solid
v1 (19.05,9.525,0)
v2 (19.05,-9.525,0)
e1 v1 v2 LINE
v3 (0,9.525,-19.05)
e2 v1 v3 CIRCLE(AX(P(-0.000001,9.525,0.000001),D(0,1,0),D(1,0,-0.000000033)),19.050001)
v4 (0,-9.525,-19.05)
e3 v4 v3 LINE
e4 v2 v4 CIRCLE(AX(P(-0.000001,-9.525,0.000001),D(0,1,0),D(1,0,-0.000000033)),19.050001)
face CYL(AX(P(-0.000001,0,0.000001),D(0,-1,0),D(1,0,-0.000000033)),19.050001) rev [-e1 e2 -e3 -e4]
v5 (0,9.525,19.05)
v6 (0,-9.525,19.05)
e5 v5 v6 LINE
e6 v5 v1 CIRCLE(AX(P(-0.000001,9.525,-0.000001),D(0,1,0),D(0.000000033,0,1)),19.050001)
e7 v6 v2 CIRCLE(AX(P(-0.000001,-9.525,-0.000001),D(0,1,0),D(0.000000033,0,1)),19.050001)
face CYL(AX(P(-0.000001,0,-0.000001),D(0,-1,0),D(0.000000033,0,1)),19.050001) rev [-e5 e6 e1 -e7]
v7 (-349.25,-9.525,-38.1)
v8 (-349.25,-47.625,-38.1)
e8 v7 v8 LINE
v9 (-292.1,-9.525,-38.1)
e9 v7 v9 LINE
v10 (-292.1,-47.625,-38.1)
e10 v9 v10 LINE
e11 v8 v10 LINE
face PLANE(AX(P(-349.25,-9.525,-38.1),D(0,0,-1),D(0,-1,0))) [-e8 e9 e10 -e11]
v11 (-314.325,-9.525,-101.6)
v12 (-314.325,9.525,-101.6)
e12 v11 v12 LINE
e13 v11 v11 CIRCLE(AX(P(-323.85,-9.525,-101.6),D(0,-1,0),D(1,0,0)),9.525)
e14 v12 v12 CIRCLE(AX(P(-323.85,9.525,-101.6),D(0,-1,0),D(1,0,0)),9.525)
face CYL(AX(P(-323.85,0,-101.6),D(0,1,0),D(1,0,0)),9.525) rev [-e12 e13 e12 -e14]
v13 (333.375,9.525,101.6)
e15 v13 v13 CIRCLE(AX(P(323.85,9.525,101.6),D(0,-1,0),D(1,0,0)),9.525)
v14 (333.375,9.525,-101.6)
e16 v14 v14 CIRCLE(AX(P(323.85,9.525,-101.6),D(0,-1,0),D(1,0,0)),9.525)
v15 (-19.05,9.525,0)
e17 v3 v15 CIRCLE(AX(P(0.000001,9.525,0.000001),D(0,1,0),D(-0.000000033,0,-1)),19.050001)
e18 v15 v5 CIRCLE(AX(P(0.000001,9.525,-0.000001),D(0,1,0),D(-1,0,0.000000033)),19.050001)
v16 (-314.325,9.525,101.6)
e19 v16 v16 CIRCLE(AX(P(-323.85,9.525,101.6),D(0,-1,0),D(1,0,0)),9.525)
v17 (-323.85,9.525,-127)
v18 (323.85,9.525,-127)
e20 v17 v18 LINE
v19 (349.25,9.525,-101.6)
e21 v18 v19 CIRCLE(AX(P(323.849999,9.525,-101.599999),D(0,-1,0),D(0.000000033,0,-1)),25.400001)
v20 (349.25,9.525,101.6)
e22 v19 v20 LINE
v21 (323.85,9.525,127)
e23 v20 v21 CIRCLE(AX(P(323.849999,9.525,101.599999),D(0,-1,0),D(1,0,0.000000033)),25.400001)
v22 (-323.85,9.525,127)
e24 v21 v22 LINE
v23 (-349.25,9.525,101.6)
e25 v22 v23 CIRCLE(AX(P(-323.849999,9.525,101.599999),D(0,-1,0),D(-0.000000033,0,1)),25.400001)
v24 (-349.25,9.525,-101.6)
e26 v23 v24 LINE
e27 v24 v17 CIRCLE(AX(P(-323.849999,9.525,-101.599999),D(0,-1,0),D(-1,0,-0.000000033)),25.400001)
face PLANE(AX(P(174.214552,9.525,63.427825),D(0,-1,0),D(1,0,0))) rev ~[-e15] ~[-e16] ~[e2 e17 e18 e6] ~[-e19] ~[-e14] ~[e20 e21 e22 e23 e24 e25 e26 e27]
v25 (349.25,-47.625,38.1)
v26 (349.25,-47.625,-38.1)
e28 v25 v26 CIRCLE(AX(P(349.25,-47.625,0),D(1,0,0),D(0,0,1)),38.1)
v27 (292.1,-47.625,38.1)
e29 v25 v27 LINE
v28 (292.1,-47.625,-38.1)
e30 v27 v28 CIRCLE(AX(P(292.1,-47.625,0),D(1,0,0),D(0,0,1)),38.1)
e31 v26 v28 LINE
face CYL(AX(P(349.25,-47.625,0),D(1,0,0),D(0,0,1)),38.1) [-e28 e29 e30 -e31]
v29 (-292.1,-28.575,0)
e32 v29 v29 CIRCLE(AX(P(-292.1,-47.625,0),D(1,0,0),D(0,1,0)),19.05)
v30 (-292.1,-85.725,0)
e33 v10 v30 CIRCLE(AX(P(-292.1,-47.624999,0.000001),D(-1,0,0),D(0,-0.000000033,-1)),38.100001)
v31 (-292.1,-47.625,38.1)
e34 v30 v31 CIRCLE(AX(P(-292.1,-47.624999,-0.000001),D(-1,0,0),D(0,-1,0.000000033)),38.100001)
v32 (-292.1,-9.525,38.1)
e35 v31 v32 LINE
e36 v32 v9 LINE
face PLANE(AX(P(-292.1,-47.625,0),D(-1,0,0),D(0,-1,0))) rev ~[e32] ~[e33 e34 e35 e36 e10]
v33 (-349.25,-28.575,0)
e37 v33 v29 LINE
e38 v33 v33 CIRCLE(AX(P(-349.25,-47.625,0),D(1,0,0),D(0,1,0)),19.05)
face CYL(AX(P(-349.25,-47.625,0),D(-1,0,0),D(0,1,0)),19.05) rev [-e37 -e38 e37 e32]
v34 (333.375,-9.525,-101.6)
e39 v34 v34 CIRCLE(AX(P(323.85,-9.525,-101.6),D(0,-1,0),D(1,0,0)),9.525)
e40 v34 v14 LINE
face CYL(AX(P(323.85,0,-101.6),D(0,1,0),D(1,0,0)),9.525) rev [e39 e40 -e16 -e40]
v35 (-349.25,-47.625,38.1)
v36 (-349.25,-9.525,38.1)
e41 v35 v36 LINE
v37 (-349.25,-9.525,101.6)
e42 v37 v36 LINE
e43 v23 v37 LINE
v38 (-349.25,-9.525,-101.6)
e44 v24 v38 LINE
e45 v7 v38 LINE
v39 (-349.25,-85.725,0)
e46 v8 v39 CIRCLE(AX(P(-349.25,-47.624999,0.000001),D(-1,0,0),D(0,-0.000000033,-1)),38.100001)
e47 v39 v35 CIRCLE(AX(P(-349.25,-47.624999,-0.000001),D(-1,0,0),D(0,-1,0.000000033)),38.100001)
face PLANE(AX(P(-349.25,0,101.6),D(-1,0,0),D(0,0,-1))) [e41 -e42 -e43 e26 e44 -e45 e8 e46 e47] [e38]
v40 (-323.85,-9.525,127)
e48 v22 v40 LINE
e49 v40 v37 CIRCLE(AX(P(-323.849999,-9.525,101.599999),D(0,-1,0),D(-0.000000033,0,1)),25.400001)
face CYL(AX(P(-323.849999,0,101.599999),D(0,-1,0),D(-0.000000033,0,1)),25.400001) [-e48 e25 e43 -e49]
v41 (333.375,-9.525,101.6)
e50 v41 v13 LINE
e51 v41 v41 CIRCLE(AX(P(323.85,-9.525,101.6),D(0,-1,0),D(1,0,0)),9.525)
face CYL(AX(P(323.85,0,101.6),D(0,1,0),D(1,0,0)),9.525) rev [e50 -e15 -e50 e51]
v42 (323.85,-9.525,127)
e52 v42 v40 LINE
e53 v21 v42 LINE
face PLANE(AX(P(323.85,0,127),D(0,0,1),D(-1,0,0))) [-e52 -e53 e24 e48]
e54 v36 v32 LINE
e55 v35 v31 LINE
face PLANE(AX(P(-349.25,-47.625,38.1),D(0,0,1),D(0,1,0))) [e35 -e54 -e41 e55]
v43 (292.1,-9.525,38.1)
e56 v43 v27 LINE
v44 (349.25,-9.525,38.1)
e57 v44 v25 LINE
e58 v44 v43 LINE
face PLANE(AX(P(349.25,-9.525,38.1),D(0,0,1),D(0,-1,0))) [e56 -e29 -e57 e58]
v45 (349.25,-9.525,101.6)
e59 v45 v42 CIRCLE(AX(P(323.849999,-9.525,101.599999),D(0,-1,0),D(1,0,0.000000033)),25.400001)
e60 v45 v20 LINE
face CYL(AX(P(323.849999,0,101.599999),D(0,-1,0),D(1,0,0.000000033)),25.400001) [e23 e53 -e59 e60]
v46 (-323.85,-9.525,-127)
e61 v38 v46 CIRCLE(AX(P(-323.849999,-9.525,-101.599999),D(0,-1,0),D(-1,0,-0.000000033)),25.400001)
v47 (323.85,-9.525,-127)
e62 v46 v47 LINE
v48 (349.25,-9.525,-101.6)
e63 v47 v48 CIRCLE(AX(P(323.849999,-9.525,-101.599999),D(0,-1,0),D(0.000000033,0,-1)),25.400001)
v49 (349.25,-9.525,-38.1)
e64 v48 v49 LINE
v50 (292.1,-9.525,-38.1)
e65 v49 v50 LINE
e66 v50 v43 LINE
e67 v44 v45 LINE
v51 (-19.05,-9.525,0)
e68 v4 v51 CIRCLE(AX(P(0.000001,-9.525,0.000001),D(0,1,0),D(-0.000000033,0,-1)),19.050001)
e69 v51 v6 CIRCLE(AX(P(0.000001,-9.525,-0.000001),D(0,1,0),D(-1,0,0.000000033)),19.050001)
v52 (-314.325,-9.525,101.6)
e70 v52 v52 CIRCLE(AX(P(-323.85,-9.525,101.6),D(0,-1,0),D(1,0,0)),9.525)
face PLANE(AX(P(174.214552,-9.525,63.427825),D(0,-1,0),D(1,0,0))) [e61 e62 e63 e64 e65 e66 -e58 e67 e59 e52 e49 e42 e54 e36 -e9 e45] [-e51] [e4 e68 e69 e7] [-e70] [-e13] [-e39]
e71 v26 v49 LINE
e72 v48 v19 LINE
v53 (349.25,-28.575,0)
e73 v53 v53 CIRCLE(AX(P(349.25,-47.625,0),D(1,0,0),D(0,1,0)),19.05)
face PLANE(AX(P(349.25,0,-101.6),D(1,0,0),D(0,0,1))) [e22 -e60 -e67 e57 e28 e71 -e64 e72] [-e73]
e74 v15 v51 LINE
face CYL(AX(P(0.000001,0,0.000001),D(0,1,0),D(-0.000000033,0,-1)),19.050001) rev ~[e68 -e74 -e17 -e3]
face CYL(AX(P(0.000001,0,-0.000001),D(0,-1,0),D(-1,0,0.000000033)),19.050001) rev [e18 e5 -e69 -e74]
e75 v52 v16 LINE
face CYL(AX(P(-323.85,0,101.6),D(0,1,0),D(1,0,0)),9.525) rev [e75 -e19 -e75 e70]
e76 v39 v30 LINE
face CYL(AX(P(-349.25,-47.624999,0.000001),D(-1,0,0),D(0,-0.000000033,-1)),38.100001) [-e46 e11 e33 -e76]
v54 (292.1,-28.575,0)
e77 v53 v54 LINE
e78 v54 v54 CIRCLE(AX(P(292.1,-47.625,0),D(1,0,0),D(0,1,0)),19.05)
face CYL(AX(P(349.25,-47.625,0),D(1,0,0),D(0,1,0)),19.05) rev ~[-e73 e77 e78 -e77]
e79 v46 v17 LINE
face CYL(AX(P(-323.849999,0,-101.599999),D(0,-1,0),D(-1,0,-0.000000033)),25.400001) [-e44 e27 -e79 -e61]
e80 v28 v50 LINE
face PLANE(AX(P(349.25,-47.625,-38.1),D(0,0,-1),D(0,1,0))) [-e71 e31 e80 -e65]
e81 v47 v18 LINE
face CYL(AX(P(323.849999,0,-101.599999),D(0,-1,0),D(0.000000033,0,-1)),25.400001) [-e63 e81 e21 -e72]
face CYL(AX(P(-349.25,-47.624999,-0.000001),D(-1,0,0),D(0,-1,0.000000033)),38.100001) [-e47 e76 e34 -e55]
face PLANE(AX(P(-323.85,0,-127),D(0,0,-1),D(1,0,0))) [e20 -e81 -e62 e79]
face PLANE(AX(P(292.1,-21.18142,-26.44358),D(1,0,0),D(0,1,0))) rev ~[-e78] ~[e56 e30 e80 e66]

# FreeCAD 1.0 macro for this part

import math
import FreeCAD as App
import Part
import Sketcher
Q = App.Units.Quantity

doc = App.newDocument("Part")
params = doc.addObject("Spreadsheet::Sheet", "Params")
for row, (alias, value) in enumerate([
    ("sketch1_radius", "1 in"),
    ("sketch1_diameter", "0.75 in"),
    ("sketch1_height", "8 in"),
    ("sketch1_radius2", "0.75 in"),
    ("sketch1_width", "25.5 in"),
    ("pad1_length", "0.75 in"),
    ("sketch2_diameter", "1.5 in"),
    ("sketch2_radius", "1.5 in"),
    ("sketch2_width", "1.5 in"),
    ("pad2_length", "2.25 in"),
    ("sketch3_diameter", "1.5 in"),
    ("sketch3_radius", "1.5 in"),
    ("sketch3_width", "1.5 in"),
    ("pad3_length", "2.25 in"),
], start=1):
    params.set(f"A{row}", alias)
    params.set(f"B{row}", "=" + value)
    params.setAlias(f"B{row}", alias)

body = doc.addObject("PartDesign::Body", "Body")

# Sketch on XZ plane
sketch1 = body.newObject("Sketcher::SketchObject", "Sketch")
sketch1.AttachmentSupport = (doc.getObject("XZ_Plane"), [""])
sketch1.MapMode = "FlatFace"
sketch1.addGeometry([
    Part.ArcOfCircle(Part.Circle(App.Vector(324, 102, 0), App.Vector(0, 0, 1), 25), math.radians(0), math.radians(90)),  # 0
    Part.LineSegment(App.Vector(324, 127, 0), App.Vector(-324, 127, 0)),  # 1
    Part.ArcOfCircle(Part.Circle(App.Vector(-324, 102, 0), App.Vector(0, 0, 1), 25), math.radians(90), math.radians(180)),  # 2
    Part.LineSegment(App.Vector(-349, 102, 0), App.Vector(-349, -102, 0)),  # 3
    Part.ArcOfCircle(Part.Circle(App.Vector(-324, -102, 0), App.Vector(0, 0, 1), 25), math.radians(-180), math.radians(-90)),  # 4
    Part.LineSegment(App.Vector(-324, -127, 0), App.Vector(324, -127, 0)),  # 5
    Part.ArcOfCircle(Part.Circle(App.Vector(324, -102, 0), App.Vector(0, 0, 1), 25), math.radians(-90), math.radians(0)),  # 6
    Part.LineSegment(App.Vector(349, -102, 0), App.Vector(349, 102, 0)),  # 7
    Part.Circle(App.Vector(-324, -102, 0), App.Vector(0, 0, 1), 10),  # 8
    Part.Circle(App.Vector(324, -102, 0), App.Vector(0, 0, 1), 10),  # 9
    Part.Circle(App.Vector(-324, 102, 0), App.Vector(0, 0, 1), 10),  # 10
    Part.ArcOfCircle(Part.Circle(App.Vector(0, 0, 0), App.Vector(0, 0, 1), 19), math.radians(0), math.radians(90)),  # 11
    Part.ArcOfCircle(Part.Circle(App.Vector(0, 0, 0), App.Vector(0, 0, 1), 19), math.radians(-90), math.radians(0)),  # 12
    Part.ArcOfCircle(Part.Circle(App.Vector(0, 0, 0), App.Vector(0, 0, 1), 19), math.radians(-180), math.radians(-90)),  # 13
    Part.ArcOfCircle(Part.Circle(App.Vector(0, 0, 0), App.Vector(0, 0, 1), 19), math.radians(90), math.radians(180)),  # 14
    Part.Circle(App.Vector(324, 102, 0), App.Vector(0, 0, 1), 10),  # 15
], False)
sketch1.addConstraint([
    Sketcher.Constraint("Tangent", 0, 2, 1, 1),
    Sketcher.Constraint("Tangent", 1, 2, 2, 1),
    Sketcher.Constraint("Tangent", 2, 2, 3, 1),
    Sketcher.Constraint("Tangent", 3, 2, 4, 1),
    Sketcher.Constraint("Tangent", 4, 2, 5, 1),
    Sketcher.Constraint("Tangent", 5, 2, 6, 1),
    Sketcher.Constraint("Tangent", 6, 2, 7, 1),
    Sketcher.Constraint("Tangent", 7, 2, 0, 1),
    Sketcher.Constraint("Tangent", 11, 1, 12, 2),
    Sketcher.Constraint("Tangent", 12, 1, 13, 2),
    Sketcher.Constraint("Tangent", 13, 1, 14, 2),
    Sketcher.Constraint("Tangent", 14, 1, 11, 2),
    Sketcher.Constraint("Horizontal", 1),
    Sketcher.Constraint("Vertical", 3),
    Sketcher.Constraint("Horizontal", 5),
    Sketcher.Constraint("Vertical", 7),
    Sketcher.Constraint("Coincident", 11, 3, -1, 1),
    Sketcher.Constraint("Coincident", 8, 3, 4, 3),
    Sketcher.Constraint("Coincident", 9, 3, 6, 3),
    Sketcher.Constraint("Coincident", 10, 3, 2, 3),
    Sketcher.Constraint("Coincident", 15, 3, 0, 3),
    Sketcher.Constraint("Equal", 0, 2),
    Sketcher.Constraint("Equal", 2, 4),
    Sketcher.Constraint("Equal", 4, 6),
    Sketcher.Constraint("Equal", 8, 9),
    Sketcher.Constraint("Equal", 9, 10),
    Sketcher.Constraint("Equal", 11, 12),
    Sketcher.Constraint("Equal", 10, 15),
    Sketcher.Constraint("Symmetric", 0, 3, 4, 3, -1, 1),
    Sketcher.Constraint("PointOnObject", 11, 1, -1),
    Sketcher.Constraint("PointOnObject", 12, 1, -2),
    Sketcher.Constraint("PointOnObject", 13, 1, -1),
    Sketcher.Constraint("PointOnObject", 14, 1, -2),
    Sketcher.Constraint("Radius", 0, Q("1 in")),
    Sketcher.Constraint("Diameter", 8, Q("0.75 in")),
    Sketcher.Constraint("DistanceY", 3, 2, 3, 1, Q("8 in")),
    Sketcher.Constraint("Radius", 11, Q("0.75 in")),
    Sketcher.Constraint("DistanceX", 1, 2, 1, 1, Q("25.5 in")),
])
sketch1.setExpression("Constraints[33]", "Params.sketch1_radius")
sketch1.setExpression("Constraints[34]", "Params.sketch1_diameter")
sketch1.setExpression("Constraints[35]", "Params.sketch1_height")
sketch1.setExpression("Constraints[36]", "Params.sketch1_radius2")
sketch1.setExpression("Constraints[37]", "Params.sketch1_width")
pad1 = body.newObject("PartDesign::Pad", "Pad")
pad1.Profile = sketch1
pad1.setExpression("Length", "Params.pad1_length")
pad1.Midplane = True

# Sketch on YZ plane
sketch2 = body.newObject("Sketcher::SketchObject", "Sketch001")
sketch2.AttachmentSupport = (doc.getObject("YZ_Plane"), [""])
sketch2.MapMode = "FlatFace"
sketch2.AttachmentOffset = App.Placement(App.Vector(0, 0, 13.75 * 25.4), App.Rotation())
sketch2.addGeometry([
    Part.LineSegment(App.Vector(-48, -38, 0), App.Vector(-10, -38, 0)),  # 0
    Part.LineSegment(App.Vector(-10, -38, 0), App.Vector(-10, 38, 0)),  # 1
    Part.LineSegment(App.Vector(-10, 38, 0), App.Vector(-48, 38, 0)),  # 2
    Part.ArcOfCircle(Part.Circle(App.Vector(-48, 0, 0), App.Vector(0, 0, 1), 38), math.radians(90), math.radians(270)),  # 3
    Part.Circle(App.Vector(-48, 0, 0), App.Vector(0, 0, 1), 19),  # 4
], False)
sketch2.addConstraint([
    Sketcher.Constraint("Coincident", 0, 2, 1, 1),
    Sketcher.Constraint("Coincident", 1, 2, 2, 1),
    Sketcher.Constraint("Tangent", 2, 2, 3, 1),
    Sketcher.Constraint("Tangent", 3, 2, 0, 1),
    Sketcher.Constraint("Horizontal", 0),
    Sketcher.Constraint("Vertical", 1),
    Sketcher.Constraint("Horizontal", 2),
    Sketcher.Constraint("Coincident", 4, 3, 3, 3),
    Sketcher.Constraint("PointOnObject", 3, 3, -1),
    Sketcher.Constraint("Diameter", 4, Q("1.5 in")),
    Sketcher.Constraint("Radius", 3, Q("1.5 in")),
    Sketcher.Constraint("DistanceX", 0, 1, 0, 2, Q("1.5 in")),
    Sketcher.Constraint("DistanceX", 3, 3, -1, 1, Q("1.875 in")),
])
sketch2.setExpression("Constraints[9]", "Params.sketch2_diameter")
sketch2.setExpression("Constraints[10]", "Params.sketch2_radius")
sketch2.setExpression("Constraints[11]", "Params.sketch2_width")
pad2 = body.newObject("PartDesign::Pad", "Pad001")
pad2.Profile = sketch2
pad2.setExpression("Length", "Params.pad2_length")
pad2.Reversed = True

# Sketch on YZ plane
sketch3 = body.newObject("Sketcher::SketchObject", "Sketch002")
sketch3.AttachmentSupport = (doc.getObject("YZ_Plane"), [""])
sketch3.MapMode = "FlatFace"
sketch3.AttachmentOffset = App.Placement(App.Vector(0, 0, -13.75 * 25.4), App.Rotation())
sketch3.addGeometry([
    Part.ArcOfCircle(Part.Circle(App.Vector(-48, 0, 0), App.Vector(0, 0, 1), 38), math.radians(90), math.radians(180)),  # 0
    Part.LineSegment(App.Vector(-48, 38, 0), App.Vector(-10, 38, 0)),  # 1
    Part.LineSegment(App.Vector(-10, 38, 0), App.Vector(-10, -38, 0)),  # 2
    Part.LineSegment(App.Vector(-10, -38, 0), App.Vector(-48, -38, 0)),  # 3
    Part.ArcOfCircle(Part.Circle(App.Vector(-48, 0, 0), App.Vector(0, 0, 1), 38), math.radians(-180), math.radians(-90)),  # 4
    Part.Circle(App.Vector(-48, 0, 0), App.Vector(0, 0, 1), 19),  # 5
], False)
sketch3.addConstraint([
    Sketcher.Constraint("Tangent", 0, 1, 1, 1),
    Sketcher.Constraint("Coincident", 1, 2, 2, 1),
    Sketcher.Constraint("Coincident", 2, 2, 3, 1),
    Sketcher.Constraint("Tangent", 3, 2, 4, 2),
    Sketcher.Constraint("Tangent", 4, 1, 0, 2),
    Sketcher.Constraint("Horizontal", 1),
    Sketcher.Constraint("Vertical", 2),
    Sketcher.Constraint("Horizontal", 3),
    Sketcher.Constraint("Coincident", 5, 3, 0, 3),
    Sketcher.Constraint("Equal", 0, 4),
    Sketcher.Constraint("PointOnObject", 0, 3, -1),
    Sketcher.Constraint("PointOnObject", 4, 1, -1),
    Sketcher.Constraint("Diameter", 5, Q("1.5 in")),
    Sketcher.Constraint("Radius", 0, Q("1.5 in")),
    Sketcher.Constraint("DistanceX", 1, 1, 1, 2, Q("1.5 in")),
    Sketcher.Constraint("DistanceX", 0, 3, -1, 1, Q("1.875 in")),
])
sketch3.setExpression("Constraints[12]", "Params.sketch3_diameter")
sketch3.setExpression("Constraints[13]", "Params.sketch3_radius")
sketch3.setExpression("Constraints[14]", "Params.sketch3_width")
pad3 = body.newObject("PartDesign::Pad", "Pad002")
pad3.Profile = sketch3
pad3.setExpression("Length", "Params.pad3_length")

doc.recompute()
